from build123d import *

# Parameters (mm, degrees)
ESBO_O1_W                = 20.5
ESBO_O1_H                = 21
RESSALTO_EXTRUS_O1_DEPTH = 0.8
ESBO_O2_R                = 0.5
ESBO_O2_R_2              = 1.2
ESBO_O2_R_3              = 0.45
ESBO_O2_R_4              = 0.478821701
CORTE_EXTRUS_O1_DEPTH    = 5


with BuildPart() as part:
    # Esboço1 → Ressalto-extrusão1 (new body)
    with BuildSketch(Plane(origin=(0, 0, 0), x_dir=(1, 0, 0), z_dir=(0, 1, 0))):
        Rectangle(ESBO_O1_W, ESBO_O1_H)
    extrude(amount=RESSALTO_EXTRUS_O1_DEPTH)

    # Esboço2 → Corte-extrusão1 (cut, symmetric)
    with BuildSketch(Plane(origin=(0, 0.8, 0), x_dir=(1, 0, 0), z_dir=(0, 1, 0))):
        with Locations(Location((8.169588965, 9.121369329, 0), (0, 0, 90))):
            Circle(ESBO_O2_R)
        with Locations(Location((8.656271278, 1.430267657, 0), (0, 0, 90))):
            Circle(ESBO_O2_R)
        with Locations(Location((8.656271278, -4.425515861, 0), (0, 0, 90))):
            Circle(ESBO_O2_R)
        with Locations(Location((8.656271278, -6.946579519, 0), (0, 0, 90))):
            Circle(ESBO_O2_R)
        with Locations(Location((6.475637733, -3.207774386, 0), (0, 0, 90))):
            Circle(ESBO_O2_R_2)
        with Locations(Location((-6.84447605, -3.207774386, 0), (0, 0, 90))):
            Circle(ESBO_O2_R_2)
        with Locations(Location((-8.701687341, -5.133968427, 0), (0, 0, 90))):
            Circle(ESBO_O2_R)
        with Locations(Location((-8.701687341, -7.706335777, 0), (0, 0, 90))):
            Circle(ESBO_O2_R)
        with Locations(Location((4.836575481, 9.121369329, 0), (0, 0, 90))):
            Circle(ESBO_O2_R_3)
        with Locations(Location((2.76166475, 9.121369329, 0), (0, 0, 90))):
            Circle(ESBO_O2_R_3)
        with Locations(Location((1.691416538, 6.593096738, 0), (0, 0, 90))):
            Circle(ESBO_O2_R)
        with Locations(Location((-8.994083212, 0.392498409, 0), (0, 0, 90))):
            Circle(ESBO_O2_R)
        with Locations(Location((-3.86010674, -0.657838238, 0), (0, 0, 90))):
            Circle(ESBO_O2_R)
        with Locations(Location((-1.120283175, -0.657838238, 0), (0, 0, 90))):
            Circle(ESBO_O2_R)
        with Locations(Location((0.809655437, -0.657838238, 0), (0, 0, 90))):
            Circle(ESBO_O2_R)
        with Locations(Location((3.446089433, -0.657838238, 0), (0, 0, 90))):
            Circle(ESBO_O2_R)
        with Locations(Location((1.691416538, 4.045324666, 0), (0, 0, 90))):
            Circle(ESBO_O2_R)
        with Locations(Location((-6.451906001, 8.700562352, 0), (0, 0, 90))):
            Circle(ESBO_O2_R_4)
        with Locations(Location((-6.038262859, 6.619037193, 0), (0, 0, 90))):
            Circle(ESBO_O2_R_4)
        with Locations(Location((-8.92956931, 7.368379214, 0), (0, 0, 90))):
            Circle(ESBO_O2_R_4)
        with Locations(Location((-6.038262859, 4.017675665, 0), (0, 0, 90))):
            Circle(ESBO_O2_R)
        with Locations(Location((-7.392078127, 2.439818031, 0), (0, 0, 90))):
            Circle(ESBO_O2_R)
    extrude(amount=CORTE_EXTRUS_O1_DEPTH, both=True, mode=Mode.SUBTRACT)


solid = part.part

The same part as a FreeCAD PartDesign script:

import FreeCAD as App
import Part
import Sketcher

V = App.Vector
Q = App.Units.Quantity


def add_polygon(sketch, points):
    """Adds a closed chain of lines whose ends are joined by coincident constraints."""
    first, n = sketch.GeometryCount, len(points)
    for a, b in zip(points, points[1:] + points[:1]):
        sketch.addGeometry(Part.LineSegment(App.Vector(*a, 0), App.Vector(*b, 0)), False)
    for i in range(n):
        sketch.addConstraint(Sketcher.Constraint("Coincident", first + i, 2, first + (i + 1) % n, 1))

doc = App.newDocument("Part")
body = doc.addObject("PartDesign::Body", "Body")

# Sketch on XZ plane
sketch1 = doc.addObject("Sketcher::SketchObject", "Sketch")
body.addObject(sketch1)
sketch1.AttachmentSupport = (doc.XZ_Plane, [""])
sketch1.MapMode = "FlatFace"
add_polygon(sketch1, [(-10, -10), (-10, 10), (10, 10), (10, -10)])  # lines 0-3
sketch1.addConstraint([
    Sketcher.Constraint("Vertical", 0),
    Sketcher.Constraint("Horizontal", 1),
    Sketcher.Constraint("Vertical", 2),
    Sketcher.Constraint("Horizontal", 3),
    Sketcher.Constraint("Symmetric", 0, 2, 2, 2, -1, 1),
    Sketcher.Constraint("DistanceY", 0, 1, 0, 2, Q("21 mm")),
    Sketcher.Constraint("DistanceX", 1, 1, 1, 2, Q("20.5 mm")),
])
pad1 = doc.addObject("PartDesign::Pad", "Pad")
body.addObject(pad1)
pad1.Profile = sketch1
pad1.Length = 0.8
pad1.Reversed = True

# Sketch on XZ plane
sketch2 = doc.addObject("Sketcher::SketchObject", "Sketch001")
body.addObject(sketch2)
sketch2.AttachmentSupport = (doc.XZ_Plane, [""])
sketch2.MapMode = "FlatFace"
sketch2.AttachmentOffset = App.Placement(V(0, 0, -0.8), App.Rotation())
sketch2.addGeometry([
    Part.Circle(V(8.17, -9.12, 0), V(0, 0, 1), 0.5),  # 0
    Part.Circle(V(8.66, -1.43, 0), V(0, 0, 1), 0.5),  # 1
    Part.Circle(V(8.66, 4.43, 0), V(0, 0, 1), 0.5),  # 2
    Part.Circle(V(8.66, 6.95, 0), V(0, 0, 1), 0.5),  # 3
    Part.Circle(V(6.48, 3.21, 0), V(0, 0, 1), 1.2),  # 4
    Part.Circle(V(-6.84, 3.21, 0), V(0, 0, 1), 1.2),  # 5
    Part.Circle(V(-8.7, 5.13, 0), V(0, 0, 1), 0.5),  # 6
    Part.Circle(V(-8.7, 7.71, 0), V(0, 0, 1), 0.5),  # 7
    Part.Circle(V(4.84, -9.12, 0), V(0, 0, 1), 0.45),  # 8
    Part.Circle(V(2.76, -9.12, 0), V(0, 0, 1), 0.45),  # 9
    Part.Circle(V(1.69, -6.59, 0), V(0, 0, 1), 0.5),  # 10
    Part.Circle(V(-8.99, -0.39, 0), V(0, 0, 1), 0.5),  # 11
    Part.Circle(V(-3.86, 0.66, 0), V(0, 0, 1), 0.5),  # 12
    Part.Circle(V(-1.12, 0.66, 0), V(0, 0, 1), 0.5),  # 13
    Part.Circle(V(0.81, 0.66, 0), V(0, 0, 1), 0.5),  # 14
    Part.Circle(V(3.45, 0.66, 0), V(0, 0, 1), 0.5),  # 15
    Part.Circle(V(1.69, -4.05, 0), V(0, 0, 1), 0.5),  # 16
    Part.Circle(V(-6.45, -8.7, 0), V(0, 0, 1), 0.48),  # 17
    Part.Circle(V(-6.04, -6.62, 0), V(0, 0, 1), 0.48),  # 18
    Part.Circle(V(-8.93, -7.37, 0), V(0, 0, 1), 0.48),  # 19
    Part.Circle(V(-6.04, -4.02, 0), V(0, 0, 1), 0.5),  # 20
    Part.Circle(V(-7.39, -2.44, 0), V(0, 0, 1), 0.5),  # 21
], False)
sketch2.addConstraint([
    Sketcher.Constraint("Equal", 0, 1),
    Sketcher.Constraint("Equal", 1, 2),
    Sketcher.Constraint("Equal", 2, 3),
    Sketcher.Constraint("Equal", 4, 5),
    Sketcher.Constraint("Equal", 3, 6),
    Sketcher.Constraint("Equal", 6, 7),
    Sketcher.Constraint("Equal", 8, 9),
    Sketcher.Constraint("Equal", 7, 10),
    Sketcher.Constraint("Equal", 10, 11),
    Sketcher.Constraint("Equal", 11, 12),
    Sketcher.Constraint("Equal", 12, 13),
    Sketcher.Constraint("Equal", 13, 14),
    Sketcher.Constraint("Equal", 14, 15),
    Sketcher.Constraint("Equal", 15, 16),
    Sketcher.Constraint("Equal", 17, 18),
    Sketcher.Constraint("Equal", 18, 19),
    Sketcher.Constraint("Equal", 16, 20),
    Sketcher.Constraint("Equal", 20, 21),
    Sketcher.Constraint("Horizontal", 4, 3, 5, 3),
    Sketcher.Constraint("Horizontal", 0, 3, 8, 3),
    Sketcher.Constraint("Horizontal", 8, 3, 9, 3),
    Sketcher.Constraint("Horizontal", 12, 3, 13, 3),
    Sketcher.Constraint("Horizontal", 13, 3, 14, 3),
    Sketcher.Constraint("Horizontal", 14, 3, 15, 3),
    Sketcher.Constraint("Vertical", 1, 3, 2, 3),
    Sketcher.Constraint("Vertical", 2, 3, 3, 3),
    Sketcher.Constraint("Vertical", 6, 3, 7, 3),
    Sketcher.Constraint("Vertical", 10, 3, 16, 3),
    Sketcher.Constraint("Vertical", 18, 3, 20, 3),
    Sketcher.Constraint("Diameter", 0, Q("1 mm")),
    Sketcher.Constraint("Diameter", 4, Q("2.4 mm")),
    Sketcher.Constraint("Diameter", 8, Q("0.9 mm")),
    Sketcher.Constraint("Diameter", 17, Q("0.957643 mm")),
    Sketcher.Constraint("DistanceY", 11, 3, -1, 1, Q("0.392498 mm")),
    Sketcher.Constraint("DistanceY", 0, 3, 1, 3, Q("7.691102 mm")),
    Sketcher.Constraint("DistanceX", 11, 3, 10, 3, Q("10.6855 mm")),
    Sketcher.Constraint("DistanceY", 10, 3, 11, 3, Q("6.200598 mm")),
    Sketcher.Constraint("DistanceX", 13, 3, 10, 3, Q("2.8117 mm")),
    Sketcher.Constraint("DistanceX", 17, 3, 12, 3, Q("2.591799 mm")),
    Sketcher.Constraint("DistanceY", 17, 3, 12, 3, Q("9.358401 mm")),
    Sketcher.Constraint("DistanceX", -1, 1, 0, 3, Q("8.169589 mm")),
    Sketcher.Constraint("DistanceY", 0, 3, -1, 1, Q("9.121369 mm")),
    Sketcher.Constraint("DistanceX", -1, 1, 1, 3, Q("8.656271 mm")),
    Sketcher.Constraint("DistanceY", -1, 1, 3, 3, Q("6.94658 mm")),
    Sketcher.Constraint("DistanceY", -1, 1, 6, 3, Q("5.133968 mm")),
    Sketcher.Constraint("DistanceY", -1, 1, 12, 3, Q("0.657838 mm")),
    Sketcher.Constraint("DistanceX", -1, 1, 15, 3, Q("3.446089 mm")),
    Sketcher.Constraint("DistanceX", 19, 3, -1, 1, Q("8.929569 mm")),
    Sketcher.Constraint("DistanceY", 19, 3, -1, 1, Q("7.368379 mm")),
    Sketcher.Constraint("DistanceX", 21, 3, -1, 1, Q("7.392078 mm")),
    Sketcher.Constraint("DistanceY", 21, 3, -1, 1, Q("2.439818 mm")),
    Sketcher.Constraint("DistanceY", 4, 3, 2, 3, Q("1.217741 mm")),
    Sketcher.Constraint("DistanceX", 4, 3, 0, 3, Q("1.693951 mm")),
    Sketcher.Constraint("DistanceX", 6, 3, 5, 3, Q("1.857211 mm")),
    Sketcher.Constraint("DistanceX", 6, 3, 2, 3, Q("17.357959 mm")),
    Sketcher.Constraint("DistanceY", 5, 3, 7, 3, Q("4.498561 mm")),
    Sketcher.Constraint("DistanceX", 9, 3, 8, 3, Q("2.074911 mm")),
    Sketcher.Constraint("DistanceX", 10, 3, 9, 3, Q("1.070248 mm")),
    Sketcher.Constraint("DistanceX", 10, 3, 4, 3, Q("4.784221 mm")),
    Sketcher.Constraint("DistanceY", 10, 3, 4, 3, Q("9.800871 mm")),
    Sketcher.Constraint("DistanceX", 5, 3, 12, 3, Q("2.984369 mm")),
    Sketcher.Constraint("DistanceX", 13, 3, 14, 3, Q("1.929939 mm")),
    Sketcher.Constraint("DistanceX", 11, 3, 18, 3, Q("2.95582 mm")),
    Sketcher.Constraint("DistanceY", 18, 3, 11, 3, Q("6.226539 mm")),
    Sketcher.Constraint("DistanceY", 18, 3, 20, 3, Q("2.601362 mm")),
    Sketcher.Constraint("DistanceY", 16, 3, -1, 1, Q("4.045325 mm")),
])
pocket1 = doc.addObject("PartDesign::Pocket", "Pocket")
body.addObject(pocket1)
pocket1.Profile = sketch2
pocket1.Length = 10
pocket1.Midplane = True

doc.recompute()
